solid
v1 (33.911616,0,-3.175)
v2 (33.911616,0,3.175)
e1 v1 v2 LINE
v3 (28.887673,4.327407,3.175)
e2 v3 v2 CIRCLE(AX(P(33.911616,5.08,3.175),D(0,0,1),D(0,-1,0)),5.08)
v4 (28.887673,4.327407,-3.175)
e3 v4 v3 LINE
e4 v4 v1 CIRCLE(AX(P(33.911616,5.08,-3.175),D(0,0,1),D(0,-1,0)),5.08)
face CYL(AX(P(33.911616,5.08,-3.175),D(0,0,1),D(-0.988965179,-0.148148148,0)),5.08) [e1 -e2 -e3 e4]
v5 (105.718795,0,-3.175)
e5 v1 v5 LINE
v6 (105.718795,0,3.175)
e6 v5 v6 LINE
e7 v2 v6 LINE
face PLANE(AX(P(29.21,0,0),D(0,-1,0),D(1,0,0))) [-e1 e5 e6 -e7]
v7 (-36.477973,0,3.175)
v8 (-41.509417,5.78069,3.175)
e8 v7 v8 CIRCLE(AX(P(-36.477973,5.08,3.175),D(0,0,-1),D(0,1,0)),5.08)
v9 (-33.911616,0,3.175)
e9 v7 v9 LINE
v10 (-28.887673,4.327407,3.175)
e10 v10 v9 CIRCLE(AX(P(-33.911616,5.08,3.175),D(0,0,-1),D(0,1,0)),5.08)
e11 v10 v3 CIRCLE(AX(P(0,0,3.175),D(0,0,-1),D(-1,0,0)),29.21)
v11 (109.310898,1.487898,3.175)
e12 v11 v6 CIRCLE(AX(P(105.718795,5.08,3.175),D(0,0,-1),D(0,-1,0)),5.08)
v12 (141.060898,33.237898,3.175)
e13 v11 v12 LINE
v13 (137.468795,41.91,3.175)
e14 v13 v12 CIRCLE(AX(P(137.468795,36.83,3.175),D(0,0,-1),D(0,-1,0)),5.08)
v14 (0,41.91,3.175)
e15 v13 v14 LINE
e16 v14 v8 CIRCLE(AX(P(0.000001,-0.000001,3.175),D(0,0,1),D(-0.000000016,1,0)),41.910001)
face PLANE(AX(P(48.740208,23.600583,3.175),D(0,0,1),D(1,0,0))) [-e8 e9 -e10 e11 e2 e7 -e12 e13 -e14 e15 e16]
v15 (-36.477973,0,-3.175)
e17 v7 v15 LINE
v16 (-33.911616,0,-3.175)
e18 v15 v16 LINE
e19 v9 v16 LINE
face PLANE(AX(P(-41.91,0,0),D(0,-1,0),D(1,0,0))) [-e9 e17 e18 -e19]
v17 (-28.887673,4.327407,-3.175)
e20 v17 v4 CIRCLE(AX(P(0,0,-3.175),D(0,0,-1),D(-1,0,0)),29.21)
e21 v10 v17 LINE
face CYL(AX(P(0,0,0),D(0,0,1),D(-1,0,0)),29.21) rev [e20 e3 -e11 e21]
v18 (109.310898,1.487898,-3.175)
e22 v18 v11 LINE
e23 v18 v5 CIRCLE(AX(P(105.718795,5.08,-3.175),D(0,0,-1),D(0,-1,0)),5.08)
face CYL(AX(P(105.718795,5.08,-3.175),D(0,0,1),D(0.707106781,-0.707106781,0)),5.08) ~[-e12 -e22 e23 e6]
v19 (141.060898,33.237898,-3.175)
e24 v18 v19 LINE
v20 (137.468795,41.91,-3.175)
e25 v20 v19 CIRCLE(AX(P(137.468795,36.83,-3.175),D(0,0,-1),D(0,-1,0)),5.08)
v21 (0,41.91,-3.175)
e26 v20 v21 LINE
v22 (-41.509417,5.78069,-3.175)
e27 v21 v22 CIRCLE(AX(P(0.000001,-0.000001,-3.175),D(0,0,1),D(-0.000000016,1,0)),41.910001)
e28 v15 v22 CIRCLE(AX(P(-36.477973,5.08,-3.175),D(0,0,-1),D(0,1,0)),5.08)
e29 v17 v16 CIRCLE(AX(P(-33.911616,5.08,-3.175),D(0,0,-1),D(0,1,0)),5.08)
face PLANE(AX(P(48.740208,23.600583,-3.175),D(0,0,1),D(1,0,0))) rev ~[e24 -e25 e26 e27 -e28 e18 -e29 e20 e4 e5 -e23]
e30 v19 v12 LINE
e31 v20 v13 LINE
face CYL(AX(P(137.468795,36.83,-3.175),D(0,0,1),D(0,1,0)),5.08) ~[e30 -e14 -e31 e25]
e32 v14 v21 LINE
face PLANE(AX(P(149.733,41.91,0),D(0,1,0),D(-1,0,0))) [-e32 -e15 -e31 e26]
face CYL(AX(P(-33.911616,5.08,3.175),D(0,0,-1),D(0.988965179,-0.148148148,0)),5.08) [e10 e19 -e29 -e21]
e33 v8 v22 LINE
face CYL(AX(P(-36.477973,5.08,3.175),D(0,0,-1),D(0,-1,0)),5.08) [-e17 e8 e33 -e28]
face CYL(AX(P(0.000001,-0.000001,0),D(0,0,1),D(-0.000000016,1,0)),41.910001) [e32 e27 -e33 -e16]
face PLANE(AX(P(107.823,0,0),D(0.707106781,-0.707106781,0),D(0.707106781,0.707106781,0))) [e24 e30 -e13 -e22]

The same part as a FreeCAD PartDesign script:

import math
import FreeCAD as App
import Part
import Sketcher
Q = App.Units.Quantity


def edges_at(feature, points):
    """Names of the edges that pass closest to the given points."""
    edges = feature.Shape.Edges
    near = lambda p: min(range(len(edges)), key=lambda i: edges[i].distToShape(Part.Vertex(*p))[0])
    return sorted({f"Edge{near(p) + 1}" for p in points})

doc = App.newDocument("Part")
body = doc.addObject("PartDesign::Body", "Body")

# Sketch on XY plane
sketch1 = doc.addObject("Sketcher::SketchObject", "Sketch")
body.addObject(sketch1)
sketch1.AttachmentSupport = (doc.XY_Plane, [""])
sketch1.MapMode = "FlatFace"
sketch1.addGeometry([
    Part.ArcOfCircle(Part.Circle(App.Vector(0, 0, 0), App.Vector(0, 0, 1), 29), math.radians(0), math.radians(180)),  # 0
    Part.LineSegment(App.Vector(29, 0, 0), App.Vector(108, 0, 0)),  # 1
    Part.LineSegment(App.Vector(108, 0, 0), App.Vector(150, 42, 0)),  # 2
    Part.LineSegment(App.Vector(150, 42, 0), App.Vector(0, 42, 0)),  # 3
    Part.ArcOfCircle(Part.Circle(App.Vector(0, 0, 0), App.Vector(0, 0, 1), 42), math.radians(90), math.radians(180)),  # 4
    Part.LineSegment(App.Vector(-42, 0, 0), App.Vector(-29, 0, 0)),  # 5
], False)
sketch1.addConstraint([
    Sketcher.Constraint("Coincident", 0, 1, 1, 1),
    Sketcher.Constraint("Coincident", 1, 2, 2, 1),
    Sketcher.Constraint("Coincident", 2, 2, 3, 1),
    Sketcher.Constraint("Tangent", 3, 2, 4, 1),
    Sketcher.Constraint("Coincident", 4, 2, 5, 1),
    Sketcher.Constraint("Coincident", 5, 2, 0, 2),
    Sketcher.Constraint("Horizontal", 1),
    Sketcher.Constraint("Horizontal", 3),
    Sketcher.Constraint("Horizontal", 5),
    Sketcher.Constraint("Coincident", 0, 3, -1, 1),
    Sketcher.Constraint("Coincident", 4, 3, -1, 1),
    Sketcher.Constraint("PointOnObject", 0, 1, -1),
    Sketcher.Constraint("PointOnObject", 4, 2, -1),
    Sketcher.Constraint("Radius", 0, Q("1.15 in")),
    Sketcher.Constraint("Radius", 4, Q("1.65 in")),
    Sketcher.Constraint("Angle", 2, Q("45 deg")),
    Sketcher.Constraint("DistanceX", 1, 1, 1, 2, Q("3.095 in")),
])
pad1 = doc.addObject("PartDesign::Pad", "Pad")
body.addObject(pad1)
pad1.Profile = sketch1
pad1.Length = Q("0.25 in")
pad1.Midplane = True
doc.recompute()

fillet = doc.addObject("PartDesign::Fillet", "Fillet")
body.addObject(fillet)
fillet.Base = (pad1, edges_at(pad1, [
    (149.733, 41.91, 0),
    (107.823, 0, 0),
    (29.21, 0, 0),
    (-29.21, 0, 0),
    (-41.91, 0, 0),
]))
fillet.Radius = Q("0.2 in")

doc.recompute()
